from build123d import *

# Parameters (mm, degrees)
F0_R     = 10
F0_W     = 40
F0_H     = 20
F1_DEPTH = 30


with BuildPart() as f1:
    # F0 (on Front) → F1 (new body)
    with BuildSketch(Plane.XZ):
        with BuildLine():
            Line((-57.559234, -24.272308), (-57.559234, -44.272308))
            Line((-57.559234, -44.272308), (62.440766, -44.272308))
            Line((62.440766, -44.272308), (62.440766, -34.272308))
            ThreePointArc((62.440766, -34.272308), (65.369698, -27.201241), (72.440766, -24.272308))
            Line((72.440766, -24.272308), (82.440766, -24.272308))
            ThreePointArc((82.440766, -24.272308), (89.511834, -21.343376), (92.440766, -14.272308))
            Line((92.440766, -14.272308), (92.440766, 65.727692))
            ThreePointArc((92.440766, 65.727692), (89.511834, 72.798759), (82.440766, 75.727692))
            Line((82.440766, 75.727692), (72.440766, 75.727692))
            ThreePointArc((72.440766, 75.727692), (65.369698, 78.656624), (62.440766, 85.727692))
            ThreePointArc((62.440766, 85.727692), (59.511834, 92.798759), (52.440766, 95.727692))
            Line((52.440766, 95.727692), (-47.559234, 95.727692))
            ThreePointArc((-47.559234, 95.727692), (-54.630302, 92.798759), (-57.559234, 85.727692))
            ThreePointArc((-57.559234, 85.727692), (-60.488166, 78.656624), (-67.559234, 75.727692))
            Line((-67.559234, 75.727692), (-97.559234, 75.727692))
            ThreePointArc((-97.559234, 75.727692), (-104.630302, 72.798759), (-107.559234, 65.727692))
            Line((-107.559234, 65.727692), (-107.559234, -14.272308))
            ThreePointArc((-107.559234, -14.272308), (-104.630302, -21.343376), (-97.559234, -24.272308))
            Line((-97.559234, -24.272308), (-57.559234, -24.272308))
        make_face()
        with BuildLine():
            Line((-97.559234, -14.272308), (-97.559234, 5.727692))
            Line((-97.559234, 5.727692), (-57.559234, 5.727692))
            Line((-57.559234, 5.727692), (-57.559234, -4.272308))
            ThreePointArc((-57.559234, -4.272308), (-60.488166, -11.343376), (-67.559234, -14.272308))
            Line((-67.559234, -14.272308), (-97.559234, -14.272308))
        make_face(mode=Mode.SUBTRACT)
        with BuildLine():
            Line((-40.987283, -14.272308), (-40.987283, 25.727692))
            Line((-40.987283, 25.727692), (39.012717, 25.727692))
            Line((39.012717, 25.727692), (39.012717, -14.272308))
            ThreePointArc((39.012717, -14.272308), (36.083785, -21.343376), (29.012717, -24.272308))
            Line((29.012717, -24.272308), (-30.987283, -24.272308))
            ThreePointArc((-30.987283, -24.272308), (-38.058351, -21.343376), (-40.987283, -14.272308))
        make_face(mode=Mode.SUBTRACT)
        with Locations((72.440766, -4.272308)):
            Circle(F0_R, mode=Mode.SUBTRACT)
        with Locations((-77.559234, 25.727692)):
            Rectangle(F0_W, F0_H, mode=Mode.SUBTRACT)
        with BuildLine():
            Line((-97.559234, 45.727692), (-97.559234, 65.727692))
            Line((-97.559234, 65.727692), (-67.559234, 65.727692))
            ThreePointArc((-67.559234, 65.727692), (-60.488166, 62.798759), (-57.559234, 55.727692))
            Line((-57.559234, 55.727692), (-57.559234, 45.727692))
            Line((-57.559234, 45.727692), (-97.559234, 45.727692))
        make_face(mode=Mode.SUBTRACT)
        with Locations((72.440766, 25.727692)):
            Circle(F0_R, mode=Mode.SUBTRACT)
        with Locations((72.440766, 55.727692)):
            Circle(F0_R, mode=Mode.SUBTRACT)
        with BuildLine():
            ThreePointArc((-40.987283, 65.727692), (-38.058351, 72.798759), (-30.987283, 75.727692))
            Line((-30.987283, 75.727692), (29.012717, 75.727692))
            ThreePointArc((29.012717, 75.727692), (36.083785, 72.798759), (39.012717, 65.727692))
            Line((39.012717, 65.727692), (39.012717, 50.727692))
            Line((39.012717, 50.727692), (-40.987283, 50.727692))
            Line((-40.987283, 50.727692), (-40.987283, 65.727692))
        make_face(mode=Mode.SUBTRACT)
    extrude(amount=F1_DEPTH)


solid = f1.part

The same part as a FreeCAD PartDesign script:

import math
import FreeCAD as App
import Part
import Sketcher
Q = App.Units.Quantity

doc = App.newDocument("Part")
body = doc.addObject("PartDesign::Body", "Body")

# Sketch on XZ plane
sketch1 = doc.addObject("Sketcher::SketchObject", "Sketch")
body.addObject(sketch1)
sketch1.AttachmentSupport = (doc.XZ_Plane, [""])
sketch1.MapMode = "FlatFace"
sketch1.addGeometry(Part.LineSegment(App.Vector(-57.559234, -24.272308, 0), App.Vector(-57.559234, -44.272308, 0)), False)
sketch1.addGeometry(Part.LineSegment(App.Vector(-57.559234, -44.272308, 0), App.Vector(62.440766, -44.272308, 0)), False)
sketch1.addGeometry(Part.LineSegment(App.Vector(62.440766, -44.272308, 0), App.Vector(62.440766, -34.272308, 0)), False)
sketch1.addGeometry(Part.ArcOfCircle(Part.Circle(App.Vector(72.440767, -34.272309, 0), App.Vector(0, 0, 1), 10.000001), math.radians(90.000006), math.radians(179.999994)), False)
sketch1.addGeometry(Part.LineSegment(App.Vector(72.440766, -24.272308, 0), App.Vector(82.440766, -24.272308, 0)), False)
sketch1.addGeometry(Part.ArcOfCircle(Part.Circle(App.Vector(82.440767, -14.272309, 0), App.Vector(0, 0, 1), 9.999999), math.radians(-90.000004), math.radians(0.000004)), False)
sketch1.addGeometry(Part.LineSegment(App.Vector(92.440766, -14.272308, 0), App.Vector(92.440766, 65.727692, 0)), False)
sketch1.addGeometry(Part.ArcOfCircle(Part.Circle(App.Vector(82.440765, 65.727691, 0), App.Vector(0, 0, 1), 10.000001), math.radians(0.000006), math.radians(89.999994)), False)
sketch1.addGeometry(Part.LineSegment(App.Vector(82.440766, 75.727692, 0), App.Vector(72.440766, 75.727692, 0)), False)
sketch1.addGeometry(Part.ArcOfCircle(Part.Circle(App.Vector(72.440765, 85.727691, 0), App.Vector(0, 0, 1), 9.999999), math.radians(179.999996), math.radians(270.000004)), False)
sketch1.addGeometry(Part.ArcOfCircle(Part.Circle(App.Vector(52.440765, 85.727691, 0), App.Vector(0, 0, 1), 10.000001), math.radians(0.000006), math.radians(89.999994)), False)
sketch1.addGeometry(Part.LineSegment(App.Vector(52.440766, 95.727692, 0), App.Vector(-47.559234, 95.727692, 0)), False)
sketch1.addGeometry(Part.ArcOfCircle(Part.Circle(App.Vector(-47.559233, 85.727691, 0), App.Vector(0, 0, 1), 10.000001), math.radians(90.000006), math.radians(179.999994)), False)
sketch1.addGeometry(Part.ArcOfCircle(Part.Circle(App.Vector(-67.559233, 85.727691, 0), App.Vector(0, 0, 1), 9.999999), math.radians(-90.000004), math.radians(0.000004)), False)
sketch1.addGeometry(Part.LineSegment(App.Vector(-67.559234, 75.727692, 0), App.Vector(-97.559234, 75.727692, 0)), False)
sketch1.addGeometry(Part.ArcOfCircle(Part.Circle(App.Vector(-97.559233, 65.727691, 0), App.Vector(0, 0, 1), 10.000001), math.radians(90.000006), math.radians(179.999994)), False)
sketch1.addGeometry(Part.LineSegment(App.Vector(-107.559234, 65.727692, 0), App.Vector(-107.559234, -14.272308, 0)), False)
sketch1.addGeometry(Part.ArcOfCircle(Part.Circle(App.Vector(-97.559235, -14.272309, 0), App.Vector(0, 0, 1), 9.999999), math.radians(179.999996), math.radians(270.000004)), False)
sketch1.addGeometry(Part.LineSegment(App.Vector(-97.559234, -24.272308, 0), App.Vector(-57.559234, -24.272308, 0)), False)
sketch1.addGeometry(Part.LineSegment(App.Vector(-67.559234, -14.272308, 0), App.Vector(-97.559234, -14.272308, 0)), False)
sketch1.addGeometry(Part.LineSegment(App.Vector(-97.559234, -14.272308, 0), App.Vector(-97.559234, 5.727692, 0)), False)
sketch1.addGeometry(Part.LineSegment(App.Vector(-97.559234, 5.727692, 0), App.Vector(-57.559234, 5.727692, 0)), False)
sketch1.addGeometry(Part.LineSegment(App.Vector(-57.559234, 5.727692, 0), App.Vector(-57.559234, -4.272308, 0)), False)
sketch1.addGeometry(Part.ArcOfCircle(Part.Circle(App.Vector(-67.559233, -4.272309, 0), App.Vector(0, 0, 1), 9.999999), math.radians(-90.000004), math.radians(0.000004)), False)
sketch1.addGeometry(Part.Circle(App.Vector(72.440766, -4.272308, 0), App.Vector(0, 0, 1), 10), False)
sketch1.addGeometry(Part.ArcOfCircle(Part.Circle(App.Vector(-30.987284, -14.272309, 0), App.Vector(0, 0, 1), 9.999999), math.radians(179.999996), math.radians(270.000004)), False)
sketch1.addGeometry(Part.LineSegment(App.Vector(-40.987283, -14.272308, 0), App.Vector(-40.987283, 25.727692, 0)), False)
sketch1.addGeometry(Part.LineSegment(App.Vector(-40.987283, 25.727692, 0), App.Vector(39.012717, 25.727692, 0)), False)
sketch1.addGeometry(Part.LineSegment(App.Vector(39.012717, 25.727692, 0), App.Vector(39.012717, -14.272308, 0)), False)
sketch1.addGeometry(Part.ArcOfCircle(Part.Circle(App.Vector(29.012718, -14.272309, 0), App.Vector(0, 0, 1), 9.999999), math.radians(-90.000004), math.radians(0.000004)), False)
sketch1.addGeometry(Part.LineSegment(App.Vector(29.012717, -24.272308, 0), App.Vector(-30.987283, -24.272308, 0)), False)
sketch1.addGeometry(Part.LineSegment(App.Vector(-57.559234, 15.727692, 0), App.Vector(-97.559234, 15.727692, 0)), False)
sketch1.addGeometry(Part.LineSegment(App.Vector(-97.559234, 15.727692, 0), App.Vector(-97.559234, 35.727692, 0)), False)
sketch1.addGeometry(Part.LineSegment(App.Vector(-97.559234, 35.727692, 0), App.Vector(-57.559234, 35.727692, 0)), False)
sketch1.addGeometry(Part.LineSegment(App.Vector(-57.559234, 35.727692, 0), App.Vector(-57.559234, 15.727692, 0)), False)
sketch1.addGeometry(Part.LineSegment(App.Vector(-57.559234, 45.727692, 0), App.Vector(-97.559234, 45.727692, 0)), False)
sketch1.addGeometry(Part.LineSegment(App.Vector(-97.559234, 45.727692, 0), App.Vector(-97.559234, 65.727692, 0)), False)
sketch1.addGeometry(Part.LineSegment(App.Vector(-97.559234, 65.727692, 0), App.Vector(-67.559234, 65.727692, 0)), False)
sketch1.addGeometry(Part.ArcOfCircle(Part.Circle(App.Vector(-67.559235, 55.727691, 0), App.Vector(0, 0, 1), 10.000001), math.radians(0.000006), math.radians(89.999994)), False)
sketch1.addGeometry(Part.LineSegment(App.Vector(-57.559234, 55.727692, 0), App.Vector(-57.559234, 45.727692, 0)), False)
sketch1.addGeometry(Part.Circle(App.Vector(72.440766, 25.727692, 0), App.Vector(0, 0, 1), 10), False)
sketch1.addGeometry(Part.LineSegment(App.Vector(-40.987283, 50.727692, 0), App.Vector(-40.987283, 65.727692, 0)), False)
sketch1.addGeometry(Part.ArcOfCircle(Part.Circle(App.Vector(-30.987282, 65.727691, 0), App.Vector(0, 0, 1), 10.000001), math.radians(90.000006), math.radians(179.999994)), False)
sketch1.addGeometry(Part.LineSegment(App.Vector(-30.987283, 75.727692, 0), App.Vector(29.012717, 75.727692, 0)), False)
sketch1.addGeometry(Part.ArcOfCircle(Part.Circle(App.Vector(29.012716, 65.727691, 0), App.Vector(0, 0, 1), 10.000001), math.radians(0.000006), math.radians(89.999994)), False)
sketch1.addGeometry(Part.LineSegment(App.Vector(39.012717, 65.727692, 0), App.Vector(39.012717, 50.727692, 0)), False)
sketch1.addGeometry(Part.LineSegment(App.Vector(39.012717, 50.727692, 0), App.Vector(-40.987283, 50.727692, 0)), False)
sketch1.addGeometry(Part.Circle(App.Vector(72.440766, 55.727692, 0), App.Vector(0, 0, 1), 10), False)
sketch1.addConstraint(Sketcher.Constraint("Coincident", 0, 2, 1, 1))
sketch1.addConstraint(Sketcher.Constraint("Coincident", 1, 2, 2, 1))
sketch1.addConstraint(Sketcher.Constraint("Tangent", 2, 2, 3, 2))
sketch1.addConstraint(Sketcher.Constraint("Tangent", 3, 1, 4, 1))
sketch1.addConstraint(Sketcher.Constraint("Tangent", 4, 2, 5, 1))
sketch1.addConstraint(Sketcher.Constraint("Tangent", 5, 2, 6, 1))
sketch1.addConstraint(Sketcher.Constraint("Tangent", 6, 2, 7, 1))
sketch1.addConstraint(Sketcher.Constraint("Tangent", 7, 2, 8, 1))
sketch1.addConstraint(Sketcher.Constraint("Tangent", 8, 2, 9, 2))
sketch1.addConstraint(Sketcher.Constraint("Tangent", 9, 1, 10, 1))
sketch1.addConstraint(Sketcher.Constraint("Tangent", 10, 2, 11, 1))
sketch1.addConstraint(Sketcher.Constraint("Tangent", 11, 2, 12, 1))
sketch1.addConstraint(Sketcher.Constraint("Tangent", 12, 2, 13, 2))
sketch1.addConstraint(Sketcher.Constraint("Tangent", 13, 1, 14, 1))
sketch1.addConstraint(Sketcher.Constraint("Tangent", 14, 2, 15, 1))
sketch1.addConstraint(Sketcher.Constraint("Tangent", 15, 2, 16, 1))
sketch1.addConstraint(Sketcher.Constraint("Tangent", 16, 2, 17, 1))
sketch1.addConstraint(Sketcher.Constraint("Tangent", 17, 2, 18, 1))
sketch1.addConstraint(Sketcher.Constraint("Coincident", 18, 2, 0, 1))
sketch1.addConstraint(Sketcher.Constraint("Coincident", 19, 2, 20, 1))
sketch1.addConstraint(Sketcher.Constraint("Coincident", 20, 2, 21, 1))
sketch1.addConstraint(Sketcher.Constraint("Coincident", 21, 2, 22, 1))
sketch1.addConstraint(Sketcher.Constraint("Tangent", 22, 2, 23, 2))
sketch1.addConstraint(Sketcher.Constraint("Tangent", 23, 1, 19, 1))
sketch1.addConstraint(Sketcher.Constraint("Tangent", 25, 1, 26, 1))
sketch1.addConstraint(Sketcher.Constraint("Coincident", 26, 2, 27, 1))
sketch1.addConstraint(Sketcher.Constraint("Coincident", 27, 2, 28, 1))
sketch1.addConstraint(Sketcher.Constraint("Tangent", 28, 2, 29, 2))
sketch1.addConstraint(Sketcher.Constraint("Tangent", 29, 1, 30, 1))
sketch1.addConstraint(Sketcher.Constraint("Tangent", 30, 2, 25, 2))
sketch1.addConstraint(Sketcher.Constraint("Coincident", 31, 2, 32, 1))
sketch1.addConstraint(Sketcher.Constraint("Coincident", 32, 2, 33, 1))
sketch1.addConstraint(Sketcher.Constraint("Coincident", 33, 2, 34, 1))
sketch1.addConstraint(Sketcher.Constraint("Coincident", 34, 2, 31, 1))
sketch1.addConstraint(Sketcher.Constraint("Coincident", 35, 2, 36, 1))
sketch1.addConstraint(Sketcher.Constraint("Coincident", 36, 2, 37, 1))
sketch1.addConstraint(Sketcher.Constraint("Tangent", 37, 2, 38, 2))
sketch1.addConstraint(Sketcher.Constraint("Tangent", 38, 1, 39, 1))
sketch1.addConstraint(Sketcher.Constraint("Coincident", 39, 2, 35, 1))
sketch1.addConstraint(Sketcher.Constraint("Tangent", 41, 2, 42, 2))
sketch1.addConstraint(Sketcher.Constraint("Tangent", 42, 1, 43, 1))
sketch1.addConstraint(Sketcher.Constraint("Tangent", 43, 2, 44, 2))
sketch1.addConstraint(Sketcher.Constraint("Tangent", 44, 1, 45, 1))
sketch1.addConstraint(Sketcher.Constraint("Coincident", 45, 2, 46, 1))
sketch1.addConstraint(Sketcher.Constraint("Coincident", 46, 2, 41, 1))
sketch1.addConstraint(Sketcher.Constraint("Vertical", 0))
sketch1.addConstraint(Sketcher.Constraint("Horizontal", 1))
sketch1.addConstraint(Sketcher.Constraint("Vertical", 2))
sketch1.addConstraint(Sketcher.Constraint("Horizontal", 4))
sketch1.addConstraint(Sketcher.Constraint("Vertical", 6))
sketch1.addConstraint(Sketcher.Constraint("Horizontal", 8))
sketch1.addConstraint(Sketcher.Constraint("Horizontal", 11))
sketch1.addConstraint(Sketcher.Constraint("Horizontal", 14))
sketch1.addConstraint(Sketcher.Constraint("Vertical", 16))
sketch1.addConstraint(Sketcher.Constraint("Horizontal", 18))
sketch1.addConstraint(Sketcher.Constraint("Horizontal", 19))
sketch1.addConstraint(Sketcher.Constraint("Vertical", 20))
sketch1.addConstraint(Sketcher.Constraint("Horizontal", 21))
sketch1.addConstraint(Sketcher.Constraint("Vertical", 22))
sketch1.addConstraint(Sketcher.Constraint("Vertical", 26))
sketch1.addConstraint(Sketcher.Constraint("Horizontal", 27))
sketch1.addConstraint(Sketcher.Constraint("Vertical", 28))
sketch1.addConstraint(Sketcher.Constraint("Horizontal", 30))
sketch1.addConstraint(Sketcher.Constraint("Horizontal", 31))
sketch1.addConstraint(Sketcher.Constraint("Vertical", 32))
sketch1.addConstraint(Sketcher.Constraint("Horizontal", 33))
sketch1.addConstraint(Sketcher.Constraint("Vertical", 34))
sketch1.addConstraint(Sketcher.Constraint("Horizontal", 35))
sketch1.addConstraint(Sketcher.Constraint("Vertical", 36))
sketch1.addConstraint(Sketcher.Constraint("Horizontal", 37))
sketch1.addConstraint(Sketcher.Constraint("Vertical", 39))
sketch1.addConstraint(Sketcher.Constraint("Vertical", 41))
sketch1.addConstraint(Sketcher.Constraint("Horizontal", 43))
sketch1.addConstraint(Sketcher.Constraint("Vertical", 45))
sketch1.addConstraint(Sketcher.Constraint("Horizontal", 46))
sketch1.addConstraint(Sketcher.Constraint("Coincident", 19, 2, 17, 3))
sketch1.addConstraint(Sketcher.Constraint("Coincident", 36, 2, 15, 3))
sketch1.addConstraint(Sketcher.Constraint("Equal", 3, 5))
sketch1.addConstraint(Sketcher.Constraint("Equal", 5, 7))
sketch1.addConstraint(Sketcher.Constraint("Equal", 7, 9))
sketch1.addConstraint(Sketcher.Constraint("Equal", 9, 10))
sketch1.addConstraint(Sketcher.Constraint("Equal", 10, 12))
sketch1.addConstraint(Sketcher.Constraint("Equal", 12, 13))
sketch1.addConstraint(Sketcher.Constraint("Equal", 13, 15))
sketch1.addConstraint(Sketcher.Constraint("Equal", 15, 17))
sketch1.addConstraint(Sketcher.Constraint("Equal", 17, 23))
sketch1.addConstraint(Sketcher.Constraint("Equal", 23, 24))
sketch1.addConstraint(Sketcher.Constraint("Equal", 24, 25))
sketch1.addConstraint(Sketcher.Constraint("Equal", 25, 29))
sketch1.addConstraint(Sketcher.Constraint("Equal", 29, 38))
sketch1.addConstraint(Sketcher.Constraint("Equal", 38, 40))
sketch1.addConstraint(Sketcher.Constraint("Equal", 40, 42))
sketch1.addConstraint(Sketcher.Constraint("Equal", 42, 44))
sketch1.addConstraint(Sketcher.Constraint("Equal", 44, 47))
sketch1.addConstraint(Sketcher.Constraint("Horizontal", 9, 3, 10, 3))
sketch1.addConstraint(Sketcher.Constraint("Horizontal", 12, 3, 13, 3))
sketch1.addConstraint(Sketcher.Constraint("Horizontal", 5, 3, 17, 3))
sketch1.addConstraint(Sketcher.Constraint("Horizontal", 23, 3, 24, 3))
sketch1.addConstraint(Sketcher.Constraint("Horizontal", 17, 3, 25, 3))
sketch1.addConstraint(Sketcher.Constraint("Horizontal", 15, 3, 42, 3))
sketch1.addConstraint(Sketcher.Constraint("Horizontal", 38, 3, 47, 3))
sketch1.addConstraint(Sketcher.Constraint("Horizontal", 40, 3, 26, 2))
sketch1.addConstraint(Sketcher.Constraint("Vertical", 3, 3, 9, 3))
sketch1.addConstraint(Sketcher.Constraint("Vertical", 13, 3, 23, 3))
sketch1.addConstraint(Sketcher.Constraint("Vertical", 9, 3, 24, 3))
sketch1.addConstraint(Sketcher.Constraint("Vertical", 23, 3, 38, 3))
sketch1.addConstraint(Sketcher.Constraint("Vertical", 24, 3, 40, 3))
sketch1.addConstraint(Sketcher.Constraint("Vertical", 25, 3, 42, 3))
sketch1.addConstraint(Sketcher.Constraint("Vertical", 29, 3, 44, 3))
sketch1.addConstraint(Sketcher.Constraint("Vertical", 40, 3, 47, 3))
sketch1.addConstraint(Sketcher.Constraint("Vertical", 0, 2, 12, 2))
sketch1.addConstraint(Sketcher.Constraint("Vertical", 20, 2, 31, 2))
sketch1.addConstraint(Sketcher.Constraint("Vertical", 22, 2, 33, 2))
sketch1.addConstraint(Sketcher.Constraint("Equal", 8, 2))
sketch1.addConstraint(Sketcher.Constraint("Equal", 46, 6))
sketch1.addConstraint(Sketcher.Constraint("Equal", 0, 20))
sketch1.addConstraint(Sketcher.Constraint("Equal", 35, 26))
sketch1.addConstraint(Sketcher.Constraint("Equal", 20, 32))
sketch1.addConstraint(Sketcher.Constraint("Equal", 34, 36))
sketch1.addConstraint(Sketcher.Constraint("Diameter", 24, Q("20 mm")))
sketch1.addConstraint(Sketcher.Constraint("DistanceX", 1, 1, 1, 2, Q("120 mm")))
sketch1.addConstraint(Sketcher.Constraint("DistanceX", 4, 1, 4, 2, Q("10 mm")))
sketch1.addConstraint(Sketcher.Constraint("DistanceX", 14, 2, 14, 1, Q("30 mm")))
sketch1.addConstraint(Sketcher.Constraint("DistanceX", 27, 1, 27, 2, Q("80 mm")))
sketch1.addConstraint(Sketcher.Constraint("DistanceY", 41, 1, 41, 2, Q("15 mm")))
sketch1.addConstraint(Sketcher.Constraint("DistanceY", 3, 3, -1, 1, Q("34.272309 mm")))
sketch1.addConstraint(Sketcher.Constraint("DistanceX", 42, 3, -1, 1, Q("30.987282 mm")))
sketch1.addConstraint(Sketcher.Constraint("DistanceY", -1, 1, 31, 2, Q("15.727692 mm")))
sketch1.addConstraint(Sketcher.Constraint("DistanceX", -1, 1, 3, 3, Q("72.440767 mm")))
pad1 = doc.addObject("PartDesign::Pad", "Pad")
body.addObject(pad1)
pad1.Profile = sketch1
pad1.Length = 30

doc.recompute()
